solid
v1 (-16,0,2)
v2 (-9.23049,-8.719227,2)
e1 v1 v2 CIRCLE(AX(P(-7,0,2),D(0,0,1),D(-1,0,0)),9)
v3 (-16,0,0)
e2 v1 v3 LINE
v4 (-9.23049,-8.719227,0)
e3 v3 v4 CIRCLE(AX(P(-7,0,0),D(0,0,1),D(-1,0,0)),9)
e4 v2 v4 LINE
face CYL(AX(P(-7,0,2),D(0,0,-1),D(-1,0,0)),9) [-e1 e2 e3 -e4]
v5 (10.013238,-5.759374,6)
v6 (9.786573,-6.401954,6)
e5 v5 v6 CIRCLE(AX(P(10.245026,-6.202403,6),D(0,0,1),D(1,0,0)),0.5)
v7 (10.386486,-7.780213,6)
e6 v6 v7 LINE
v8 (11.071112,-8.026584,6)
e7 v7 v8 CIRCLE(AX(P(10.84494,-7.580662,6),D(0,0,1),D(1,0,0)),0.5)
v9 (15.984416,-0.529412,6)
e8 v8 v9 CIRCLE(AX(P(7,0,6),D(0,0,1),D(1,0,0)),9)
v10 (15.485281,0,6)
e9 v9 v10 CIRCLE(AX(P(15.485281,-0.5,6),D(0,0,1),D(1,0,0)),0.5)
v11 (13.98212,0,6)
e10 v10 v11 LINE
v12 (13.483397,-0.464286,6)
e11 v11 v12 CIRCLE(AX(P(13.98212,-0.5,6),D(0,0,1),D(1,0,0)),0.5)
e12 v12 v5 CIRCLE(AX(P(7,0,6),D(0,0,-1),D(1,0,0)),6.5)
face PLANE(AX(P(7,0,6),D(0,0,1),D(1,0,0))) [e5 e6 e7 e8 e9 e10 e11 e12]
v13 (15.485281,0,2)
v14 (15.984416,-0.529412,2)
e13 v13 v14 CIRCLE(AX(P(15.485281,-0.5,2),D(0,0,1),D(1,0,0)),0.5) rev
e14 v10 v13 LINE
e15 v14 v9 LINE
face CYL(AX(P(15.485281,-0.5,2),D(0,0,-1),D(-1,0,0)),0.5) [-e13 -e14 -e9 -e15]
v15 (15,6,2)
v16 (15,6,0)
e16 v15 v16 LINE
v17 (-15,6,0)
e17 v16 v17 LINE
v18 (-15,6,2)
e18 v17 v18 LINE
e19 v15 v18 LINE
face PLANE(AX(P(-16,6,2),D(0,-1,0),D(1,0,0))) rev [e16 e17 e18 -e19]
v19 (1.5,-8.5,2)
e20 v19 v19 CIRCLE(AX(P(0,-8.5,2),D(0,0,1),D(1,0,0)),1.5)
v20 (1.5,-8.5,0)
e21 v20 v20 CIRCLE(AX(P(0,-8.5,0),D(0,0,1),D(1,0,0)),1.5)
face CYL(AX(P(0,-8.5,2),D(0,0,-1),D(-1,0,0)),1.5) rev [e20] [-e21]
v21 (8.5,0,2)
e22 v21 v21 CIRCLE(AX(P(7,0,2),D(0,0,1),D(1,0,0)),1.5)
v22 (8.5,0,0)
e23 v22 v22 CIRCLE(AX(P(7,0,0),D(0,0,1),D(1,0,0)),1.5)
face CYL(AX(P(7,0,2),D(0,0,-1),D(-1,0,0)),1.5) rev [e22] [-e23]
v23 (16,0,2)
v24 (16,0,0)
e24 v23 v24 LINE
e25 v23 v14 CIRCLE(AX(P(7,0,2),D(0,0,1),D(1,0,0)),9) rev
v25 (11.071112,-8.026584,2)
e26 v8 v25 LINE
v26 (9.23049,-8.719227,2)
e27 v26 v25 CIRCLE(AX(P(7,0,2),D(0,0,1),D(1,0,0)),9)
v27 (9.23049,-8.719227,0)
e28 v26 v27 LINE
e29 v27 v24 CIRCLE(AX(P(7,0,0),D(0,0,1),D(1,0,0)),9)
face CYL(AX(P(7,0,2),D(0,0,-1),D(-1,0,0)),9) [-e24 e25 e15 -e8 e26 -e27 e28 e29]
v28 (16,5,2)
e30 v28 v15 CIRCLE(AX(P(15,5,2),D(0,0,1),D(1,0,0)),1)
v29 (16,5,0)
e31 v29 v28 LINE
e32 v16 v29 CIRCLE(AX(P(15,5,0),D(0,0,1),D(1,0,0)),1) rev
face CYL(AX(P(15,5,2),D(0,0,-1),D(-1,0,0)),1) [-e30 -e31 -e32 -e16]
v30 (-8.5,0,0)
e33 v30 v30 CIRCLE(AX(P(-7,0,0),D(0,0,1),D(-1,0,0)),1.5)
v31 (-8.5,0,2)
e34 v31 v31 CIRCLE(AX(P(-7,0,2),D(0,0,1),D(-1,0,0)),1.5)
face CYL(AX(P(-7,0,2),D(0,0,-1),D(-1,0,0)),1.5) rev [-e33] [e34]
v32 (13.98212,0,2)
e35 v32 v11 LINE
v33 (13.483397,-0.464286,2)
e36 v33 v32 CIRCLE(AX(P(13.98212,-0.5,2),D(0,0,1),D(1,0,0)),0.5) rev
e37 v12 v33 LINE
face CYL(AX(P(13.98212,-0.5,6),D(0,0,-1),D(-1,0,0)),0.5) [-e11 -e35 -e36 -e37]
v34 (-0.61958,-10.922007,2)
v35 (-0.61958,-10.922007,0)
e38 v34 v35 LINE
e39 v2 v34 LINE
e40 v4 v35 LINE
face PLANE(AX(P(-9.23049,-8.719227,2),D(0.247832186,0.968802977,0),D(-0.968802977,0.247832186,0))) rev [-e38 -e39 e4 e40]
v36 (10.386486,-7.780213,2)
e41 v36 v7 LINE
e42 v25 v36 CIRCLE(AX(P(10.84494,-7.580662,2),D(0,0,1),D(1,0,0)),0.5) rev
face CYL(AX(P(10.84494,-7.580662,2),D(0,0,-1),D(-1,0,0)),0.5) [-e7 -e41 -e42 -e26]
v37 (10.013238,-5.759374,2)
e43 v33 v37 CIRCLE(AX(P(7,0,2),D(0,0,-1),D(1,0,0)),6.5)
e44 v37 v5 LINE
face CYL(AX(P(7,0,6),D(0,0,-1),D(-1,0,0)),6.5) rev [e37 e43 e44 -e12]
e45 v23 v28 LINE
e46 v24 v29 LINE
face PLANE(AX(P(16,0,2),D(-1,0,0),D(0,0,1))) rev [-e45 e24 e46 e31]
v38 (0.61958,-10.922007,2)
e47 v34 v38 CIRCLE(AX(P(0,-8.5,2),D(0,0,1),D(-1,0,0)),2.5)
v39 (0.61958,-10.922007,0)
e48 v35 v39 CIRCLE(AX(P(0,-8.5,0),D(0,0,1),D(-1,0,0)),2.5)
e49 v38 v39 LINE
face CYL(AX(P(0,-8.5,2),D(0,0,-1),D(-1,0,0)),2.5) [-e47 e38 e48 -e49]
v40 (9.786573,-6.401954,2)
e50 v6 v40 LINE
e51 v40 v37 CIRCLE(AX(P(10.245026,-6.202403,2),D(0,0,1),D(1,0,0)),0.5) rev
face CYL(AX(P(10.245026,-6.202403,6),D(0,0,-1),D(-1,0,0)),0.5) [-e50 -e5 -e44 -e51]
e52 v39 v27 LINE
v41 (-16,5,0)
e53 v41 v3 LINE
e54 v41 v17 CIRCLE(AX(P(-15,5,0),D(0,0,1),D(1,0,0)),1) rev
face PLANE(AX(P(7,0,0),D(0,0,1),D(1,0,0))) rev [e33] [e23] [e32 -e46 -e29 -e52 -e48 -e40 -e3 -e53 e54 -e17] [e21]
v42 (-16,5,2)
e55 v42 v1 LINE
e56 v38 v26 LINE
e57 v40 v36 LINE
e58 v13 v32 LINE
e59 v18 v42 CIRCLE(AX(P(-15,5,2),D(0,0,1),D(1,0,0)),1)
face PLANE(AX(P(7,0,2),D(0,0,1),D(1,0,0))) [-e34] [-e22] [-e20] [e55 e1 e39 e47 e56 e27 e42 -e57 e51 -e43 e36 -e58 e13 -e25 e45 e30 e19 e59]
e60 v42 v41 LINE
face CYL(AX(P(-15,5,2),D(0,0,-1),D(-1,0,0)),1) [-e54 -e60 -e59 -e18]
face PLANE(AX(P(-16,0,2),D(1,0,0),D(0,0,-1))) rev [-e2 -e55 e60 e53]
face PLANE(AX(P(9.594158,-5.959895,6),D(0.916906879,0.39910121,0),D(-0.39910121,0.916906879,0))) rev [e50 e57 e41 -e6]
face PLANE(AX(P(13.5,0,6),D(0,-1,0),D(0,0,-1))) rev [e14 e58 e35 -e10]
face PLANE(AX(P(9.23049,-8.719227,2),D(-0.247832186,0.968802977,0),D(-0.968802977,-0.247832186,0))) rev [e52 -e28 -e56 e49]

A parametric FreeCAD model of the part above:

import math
import FreeCAD as App
import Part
import Sketcher
from FreeCAD import Vector
Q = App.Units.Quantity


def edges_at(feature, points):
    """Names of the edges that pass closest to the given points."""
    edges = feature.Shape.Edges
    near = lambda p: min(range(len(edges)), key=lambda i: edges[i].distToShape(Part.Vertex(*p))[0])
    return sorted({f"Edge{near(p) + 1}" for p in points})

doc = App.newDocument("Part")
body = doc.addObject("PartDesign::Body", "Body")

# Sketch on XY plane
sketch1 = body.newObject("Sketcher::SketchObject", "Sketch")
sketch1.AttachmentSupport = (doc.getObject("XY_Plane"), [""])
sketch1.MapMode = "FlatFace"
sketch1.addGeometry(Part.LineSegment(Vector(-16, 6, 0), Vector(-16, 0, 0)), False)
sketch1.addGeometry(Part.ArcOfCircle(Part.Circle(Vector(-7, 0, 0), Vector(0, 0, 1), 9), math.radians(-180), math.radians(-104)), False)
sketch1.addGeometry(Part.LineSegment(Vector(-9.2, -8.7, 0), Vector(-0.6, -10.9, 0)), False)
sketch1.addGeometry(Part.ArcOfCircle(Part.Circle(Vector(0, -8.5, 0), Vector(0, 0, 1), 2.5), math.radians(-104), math.radians(-76)), False)
sketch1.addGeometry(Part.LineSegment(Vector(0.6, -10.9, 0), Vector(9.2, -8.7, 0)), False)
sketch1.addGeometry(Part.ArcOfCircle(Part.Circle(Vector(7, 0, 0), Vector(0, 0, 1), 9), math.radians(-76), math.radians(0)), False)
sketch1.addGeometry(Part.LineSegment(Vector(16, 0, 0), Vector(16, 6, 0)), False)
sketch1.addGeometry(Part.LineSegment(Vector(16, 6, 0), Vector(-16, 6, 0)), False)
sketch1.addGeometry(Part.Circle(Vector(0, -8.5, 0), Vector(0, 0, 1), 1.5), False)
sketch1.addGeometry(Part.Circle(Vector(-7, 0, 0), Vector(0, 0, 1), 1.5), False)
sketch1.addGeometry(Part.Circle(Vector(7, 0, 0), Vector(0, 0, 1), 1.5), False)
sketch1.addConstraint(Sketcher.Constraint("Tangent", 0, 2, 1, 1))
sketch1.addConstraint(Sketcher.Constraint("Tangent", 1, 2, 2, 1))
sketch1.addConstraint(Sketcher.Constraint("Tangent", 2, 2, 3, 1))
sketch1.addConstraint(Sketcher.Constraint("Tangent", 3, 2, 4, 1))
sketch1.addConstraint(Sketcher.Constraint("Tangent", 4, 2, 5, 1))
sketch1.addConstraint(Sketcher.Constraint("Tangent", 5, 2, 6, 1))
sketch1.addConstraint(Sketcher.Constraint("Coincident", 6, 2, 7, 1))
sketch1.addConstraint(Sketcher.Constraint("Coincident", 7, 2, 0, 1))
sketch1.addConstraint(Sketcher.Constraint("Vertical", 0))
sketch1.addConstraint(Sketcher.Constraint("Vertical", 6))
sketch1.addConstraint(Sketcher.Constraint("Horizontal", 7))
sketch1.addConstraint(Sketcher.Constraint("Coincident", 8, 3, 3, 3))
sketch1.addConstraint(Sketcher.Constraint("Coincident", 9, 3, 1, 3))
sketch1.addConstraint(Sketcher.Constraint("Coincident", 10, 3, 5, 3))
sketch1.addConstraint(Sketcher.Constraint("Equal", 1, 5))
sketch1.addConstraint(Sketcher.Constraint("Equal", 8, 9))
sketch1.addConstraint(Sketcher.Constraint("Equal", 9, 10))
sketch1.addConstraint(Sketcher.Constraint("Symmetric", 1, 3, 5, 3, -1, 1))
sketch1.addConstraint(Sketcher.Constraint("Symmetric", 2, 2, 3, 2, -2))
sketch1.addConstraint(Sketcher.Constraint("Diameter", 8, Q("3 mm")))
sketch1.addConstraint(Sketcher.Constraint("Radius", 1, Q("9 mm")))
sketch1.addConstraint(Sketcher.Constraint("Radius", 3, Q("2.5 mm")))
sketch1.addConstraint(Sketcher.Constraint("DistanceX", 7, 2, 7, 1, Q("32 mm")))
sketch1.addConstraint(Sketcher.Constraint("DistanceY", 0, 2, 0, 1, Q("6 mm")))
sketch1.addConstraint(Sketcher.Constraint("DistanceY", 3, 3, -1, 1, Q("8.5 mm")))
pad1 = body.newObject("PartDesign::Pad", "Pad")
pad1.Profile = sketch1
pad1.Length = 2

# Sketch on XY plane
sketch2 = body.newObject("Sketcher::SketchObject", "Sketch001")
sketch2.AttachmentSupport = (doc.getObject("XY_Plane"), [""])
sketch2.MapMode = "FlatFace"
sketch2.AttachmentOffset = App.Placement(Vector(0, 0, 2), App.Rotation())
sketch2.addGeometry(Part.LineSegment(Vector(16, 0, 0), Vector(13.5, 0, 0)), False)
sketch2.addGeometry(Part.ArcOfCircle(Part.Circle(Vector(7, 0, 0), Vector(0, 0, 1), 6.5), math.radians(-66), math.radians(0)), False)
sketch2.addGeometry(Part.LineSegment(Vector(9.6, -6, 0), Vector(10.6, -8.3, 0)), False)
sketch2.addGeometry(Part.ArcOfCircle(Part.Circle(Vector(7, 0, 0), Vector(0, 0, 1), 9), math.radians(-66), math.radians(0)), False)
sketch2.addConstraint(Sketcher.Constraint("Coincident", 0, 2, 1, 2))
sketch2.addConstraint(Sketcher.Constraint("Coincident", 1, 1, 2, 1))
sketch2.addConstraint(Sketcher.Constraint("Coincident", 2, 2, 3, 1))
sketch2.addConstraint(Sketcher.Constraint("Coincident", 3, 2, 0, 1))
sketch2.addConstraint(Sketcher.Constraint("Horizontal", 0))
sketch2.addConstraint(Sketcher.Constraint("Coincident", 3, 3, 1, 3))
sketch2.addConstraint(Sketcher.Constraint("PointOnObject", 1, 3, -1))
sketch2.addConstraint(Sketcher.Constraint("PointOnObject", 0, 2, -1))
sketch2.addConstraint(Sketcher.Constraint("Radius", 3, Q("9 mm")))
sketch2.addConstraint(Sketcher.Constraint("Radius", 1, Q("6.5 mm")))
sketch2.addConstraint(Sketcher.Constraint("DistanceX", -1, 1, 1, 3, Q("7 mm")))
sketch2.addConstraint(Sketcher.Constraint("DistanceX", -1, 1, 2, 2, Q("10.591911 mm")))
sketch2.addConstraint(Sketcher.Constraint("DistanceX", -1, 1, 1, 1, Q("9.594158 mm")))
pad2 = body.newObject("PartDesign::Pad", "Pad001")
pad2.Profile = sketch2
pad2.Length = 4
doc.recompute()

fillet = body.newObject("PartDesign::Fillet", "Fillet")
fillet.Base = (pad2, edges_at(pad2, [(-16, 6, 1), (16, 6, 1)]))
fillet.Radius = 1
doc.recompute()

fillet2 = body.newObject("PartDesign::Fillet", "Fillet001")
fillet2.Base = (fillet, edges_at(fillet, [
    (10.592, -8.252, 4),
    (16, 0, 4),
    (13.5, 0, 4),
    (9.594, -5.96, 4),
]))
fillet2.Radius = 0.5

doc.recompute()
